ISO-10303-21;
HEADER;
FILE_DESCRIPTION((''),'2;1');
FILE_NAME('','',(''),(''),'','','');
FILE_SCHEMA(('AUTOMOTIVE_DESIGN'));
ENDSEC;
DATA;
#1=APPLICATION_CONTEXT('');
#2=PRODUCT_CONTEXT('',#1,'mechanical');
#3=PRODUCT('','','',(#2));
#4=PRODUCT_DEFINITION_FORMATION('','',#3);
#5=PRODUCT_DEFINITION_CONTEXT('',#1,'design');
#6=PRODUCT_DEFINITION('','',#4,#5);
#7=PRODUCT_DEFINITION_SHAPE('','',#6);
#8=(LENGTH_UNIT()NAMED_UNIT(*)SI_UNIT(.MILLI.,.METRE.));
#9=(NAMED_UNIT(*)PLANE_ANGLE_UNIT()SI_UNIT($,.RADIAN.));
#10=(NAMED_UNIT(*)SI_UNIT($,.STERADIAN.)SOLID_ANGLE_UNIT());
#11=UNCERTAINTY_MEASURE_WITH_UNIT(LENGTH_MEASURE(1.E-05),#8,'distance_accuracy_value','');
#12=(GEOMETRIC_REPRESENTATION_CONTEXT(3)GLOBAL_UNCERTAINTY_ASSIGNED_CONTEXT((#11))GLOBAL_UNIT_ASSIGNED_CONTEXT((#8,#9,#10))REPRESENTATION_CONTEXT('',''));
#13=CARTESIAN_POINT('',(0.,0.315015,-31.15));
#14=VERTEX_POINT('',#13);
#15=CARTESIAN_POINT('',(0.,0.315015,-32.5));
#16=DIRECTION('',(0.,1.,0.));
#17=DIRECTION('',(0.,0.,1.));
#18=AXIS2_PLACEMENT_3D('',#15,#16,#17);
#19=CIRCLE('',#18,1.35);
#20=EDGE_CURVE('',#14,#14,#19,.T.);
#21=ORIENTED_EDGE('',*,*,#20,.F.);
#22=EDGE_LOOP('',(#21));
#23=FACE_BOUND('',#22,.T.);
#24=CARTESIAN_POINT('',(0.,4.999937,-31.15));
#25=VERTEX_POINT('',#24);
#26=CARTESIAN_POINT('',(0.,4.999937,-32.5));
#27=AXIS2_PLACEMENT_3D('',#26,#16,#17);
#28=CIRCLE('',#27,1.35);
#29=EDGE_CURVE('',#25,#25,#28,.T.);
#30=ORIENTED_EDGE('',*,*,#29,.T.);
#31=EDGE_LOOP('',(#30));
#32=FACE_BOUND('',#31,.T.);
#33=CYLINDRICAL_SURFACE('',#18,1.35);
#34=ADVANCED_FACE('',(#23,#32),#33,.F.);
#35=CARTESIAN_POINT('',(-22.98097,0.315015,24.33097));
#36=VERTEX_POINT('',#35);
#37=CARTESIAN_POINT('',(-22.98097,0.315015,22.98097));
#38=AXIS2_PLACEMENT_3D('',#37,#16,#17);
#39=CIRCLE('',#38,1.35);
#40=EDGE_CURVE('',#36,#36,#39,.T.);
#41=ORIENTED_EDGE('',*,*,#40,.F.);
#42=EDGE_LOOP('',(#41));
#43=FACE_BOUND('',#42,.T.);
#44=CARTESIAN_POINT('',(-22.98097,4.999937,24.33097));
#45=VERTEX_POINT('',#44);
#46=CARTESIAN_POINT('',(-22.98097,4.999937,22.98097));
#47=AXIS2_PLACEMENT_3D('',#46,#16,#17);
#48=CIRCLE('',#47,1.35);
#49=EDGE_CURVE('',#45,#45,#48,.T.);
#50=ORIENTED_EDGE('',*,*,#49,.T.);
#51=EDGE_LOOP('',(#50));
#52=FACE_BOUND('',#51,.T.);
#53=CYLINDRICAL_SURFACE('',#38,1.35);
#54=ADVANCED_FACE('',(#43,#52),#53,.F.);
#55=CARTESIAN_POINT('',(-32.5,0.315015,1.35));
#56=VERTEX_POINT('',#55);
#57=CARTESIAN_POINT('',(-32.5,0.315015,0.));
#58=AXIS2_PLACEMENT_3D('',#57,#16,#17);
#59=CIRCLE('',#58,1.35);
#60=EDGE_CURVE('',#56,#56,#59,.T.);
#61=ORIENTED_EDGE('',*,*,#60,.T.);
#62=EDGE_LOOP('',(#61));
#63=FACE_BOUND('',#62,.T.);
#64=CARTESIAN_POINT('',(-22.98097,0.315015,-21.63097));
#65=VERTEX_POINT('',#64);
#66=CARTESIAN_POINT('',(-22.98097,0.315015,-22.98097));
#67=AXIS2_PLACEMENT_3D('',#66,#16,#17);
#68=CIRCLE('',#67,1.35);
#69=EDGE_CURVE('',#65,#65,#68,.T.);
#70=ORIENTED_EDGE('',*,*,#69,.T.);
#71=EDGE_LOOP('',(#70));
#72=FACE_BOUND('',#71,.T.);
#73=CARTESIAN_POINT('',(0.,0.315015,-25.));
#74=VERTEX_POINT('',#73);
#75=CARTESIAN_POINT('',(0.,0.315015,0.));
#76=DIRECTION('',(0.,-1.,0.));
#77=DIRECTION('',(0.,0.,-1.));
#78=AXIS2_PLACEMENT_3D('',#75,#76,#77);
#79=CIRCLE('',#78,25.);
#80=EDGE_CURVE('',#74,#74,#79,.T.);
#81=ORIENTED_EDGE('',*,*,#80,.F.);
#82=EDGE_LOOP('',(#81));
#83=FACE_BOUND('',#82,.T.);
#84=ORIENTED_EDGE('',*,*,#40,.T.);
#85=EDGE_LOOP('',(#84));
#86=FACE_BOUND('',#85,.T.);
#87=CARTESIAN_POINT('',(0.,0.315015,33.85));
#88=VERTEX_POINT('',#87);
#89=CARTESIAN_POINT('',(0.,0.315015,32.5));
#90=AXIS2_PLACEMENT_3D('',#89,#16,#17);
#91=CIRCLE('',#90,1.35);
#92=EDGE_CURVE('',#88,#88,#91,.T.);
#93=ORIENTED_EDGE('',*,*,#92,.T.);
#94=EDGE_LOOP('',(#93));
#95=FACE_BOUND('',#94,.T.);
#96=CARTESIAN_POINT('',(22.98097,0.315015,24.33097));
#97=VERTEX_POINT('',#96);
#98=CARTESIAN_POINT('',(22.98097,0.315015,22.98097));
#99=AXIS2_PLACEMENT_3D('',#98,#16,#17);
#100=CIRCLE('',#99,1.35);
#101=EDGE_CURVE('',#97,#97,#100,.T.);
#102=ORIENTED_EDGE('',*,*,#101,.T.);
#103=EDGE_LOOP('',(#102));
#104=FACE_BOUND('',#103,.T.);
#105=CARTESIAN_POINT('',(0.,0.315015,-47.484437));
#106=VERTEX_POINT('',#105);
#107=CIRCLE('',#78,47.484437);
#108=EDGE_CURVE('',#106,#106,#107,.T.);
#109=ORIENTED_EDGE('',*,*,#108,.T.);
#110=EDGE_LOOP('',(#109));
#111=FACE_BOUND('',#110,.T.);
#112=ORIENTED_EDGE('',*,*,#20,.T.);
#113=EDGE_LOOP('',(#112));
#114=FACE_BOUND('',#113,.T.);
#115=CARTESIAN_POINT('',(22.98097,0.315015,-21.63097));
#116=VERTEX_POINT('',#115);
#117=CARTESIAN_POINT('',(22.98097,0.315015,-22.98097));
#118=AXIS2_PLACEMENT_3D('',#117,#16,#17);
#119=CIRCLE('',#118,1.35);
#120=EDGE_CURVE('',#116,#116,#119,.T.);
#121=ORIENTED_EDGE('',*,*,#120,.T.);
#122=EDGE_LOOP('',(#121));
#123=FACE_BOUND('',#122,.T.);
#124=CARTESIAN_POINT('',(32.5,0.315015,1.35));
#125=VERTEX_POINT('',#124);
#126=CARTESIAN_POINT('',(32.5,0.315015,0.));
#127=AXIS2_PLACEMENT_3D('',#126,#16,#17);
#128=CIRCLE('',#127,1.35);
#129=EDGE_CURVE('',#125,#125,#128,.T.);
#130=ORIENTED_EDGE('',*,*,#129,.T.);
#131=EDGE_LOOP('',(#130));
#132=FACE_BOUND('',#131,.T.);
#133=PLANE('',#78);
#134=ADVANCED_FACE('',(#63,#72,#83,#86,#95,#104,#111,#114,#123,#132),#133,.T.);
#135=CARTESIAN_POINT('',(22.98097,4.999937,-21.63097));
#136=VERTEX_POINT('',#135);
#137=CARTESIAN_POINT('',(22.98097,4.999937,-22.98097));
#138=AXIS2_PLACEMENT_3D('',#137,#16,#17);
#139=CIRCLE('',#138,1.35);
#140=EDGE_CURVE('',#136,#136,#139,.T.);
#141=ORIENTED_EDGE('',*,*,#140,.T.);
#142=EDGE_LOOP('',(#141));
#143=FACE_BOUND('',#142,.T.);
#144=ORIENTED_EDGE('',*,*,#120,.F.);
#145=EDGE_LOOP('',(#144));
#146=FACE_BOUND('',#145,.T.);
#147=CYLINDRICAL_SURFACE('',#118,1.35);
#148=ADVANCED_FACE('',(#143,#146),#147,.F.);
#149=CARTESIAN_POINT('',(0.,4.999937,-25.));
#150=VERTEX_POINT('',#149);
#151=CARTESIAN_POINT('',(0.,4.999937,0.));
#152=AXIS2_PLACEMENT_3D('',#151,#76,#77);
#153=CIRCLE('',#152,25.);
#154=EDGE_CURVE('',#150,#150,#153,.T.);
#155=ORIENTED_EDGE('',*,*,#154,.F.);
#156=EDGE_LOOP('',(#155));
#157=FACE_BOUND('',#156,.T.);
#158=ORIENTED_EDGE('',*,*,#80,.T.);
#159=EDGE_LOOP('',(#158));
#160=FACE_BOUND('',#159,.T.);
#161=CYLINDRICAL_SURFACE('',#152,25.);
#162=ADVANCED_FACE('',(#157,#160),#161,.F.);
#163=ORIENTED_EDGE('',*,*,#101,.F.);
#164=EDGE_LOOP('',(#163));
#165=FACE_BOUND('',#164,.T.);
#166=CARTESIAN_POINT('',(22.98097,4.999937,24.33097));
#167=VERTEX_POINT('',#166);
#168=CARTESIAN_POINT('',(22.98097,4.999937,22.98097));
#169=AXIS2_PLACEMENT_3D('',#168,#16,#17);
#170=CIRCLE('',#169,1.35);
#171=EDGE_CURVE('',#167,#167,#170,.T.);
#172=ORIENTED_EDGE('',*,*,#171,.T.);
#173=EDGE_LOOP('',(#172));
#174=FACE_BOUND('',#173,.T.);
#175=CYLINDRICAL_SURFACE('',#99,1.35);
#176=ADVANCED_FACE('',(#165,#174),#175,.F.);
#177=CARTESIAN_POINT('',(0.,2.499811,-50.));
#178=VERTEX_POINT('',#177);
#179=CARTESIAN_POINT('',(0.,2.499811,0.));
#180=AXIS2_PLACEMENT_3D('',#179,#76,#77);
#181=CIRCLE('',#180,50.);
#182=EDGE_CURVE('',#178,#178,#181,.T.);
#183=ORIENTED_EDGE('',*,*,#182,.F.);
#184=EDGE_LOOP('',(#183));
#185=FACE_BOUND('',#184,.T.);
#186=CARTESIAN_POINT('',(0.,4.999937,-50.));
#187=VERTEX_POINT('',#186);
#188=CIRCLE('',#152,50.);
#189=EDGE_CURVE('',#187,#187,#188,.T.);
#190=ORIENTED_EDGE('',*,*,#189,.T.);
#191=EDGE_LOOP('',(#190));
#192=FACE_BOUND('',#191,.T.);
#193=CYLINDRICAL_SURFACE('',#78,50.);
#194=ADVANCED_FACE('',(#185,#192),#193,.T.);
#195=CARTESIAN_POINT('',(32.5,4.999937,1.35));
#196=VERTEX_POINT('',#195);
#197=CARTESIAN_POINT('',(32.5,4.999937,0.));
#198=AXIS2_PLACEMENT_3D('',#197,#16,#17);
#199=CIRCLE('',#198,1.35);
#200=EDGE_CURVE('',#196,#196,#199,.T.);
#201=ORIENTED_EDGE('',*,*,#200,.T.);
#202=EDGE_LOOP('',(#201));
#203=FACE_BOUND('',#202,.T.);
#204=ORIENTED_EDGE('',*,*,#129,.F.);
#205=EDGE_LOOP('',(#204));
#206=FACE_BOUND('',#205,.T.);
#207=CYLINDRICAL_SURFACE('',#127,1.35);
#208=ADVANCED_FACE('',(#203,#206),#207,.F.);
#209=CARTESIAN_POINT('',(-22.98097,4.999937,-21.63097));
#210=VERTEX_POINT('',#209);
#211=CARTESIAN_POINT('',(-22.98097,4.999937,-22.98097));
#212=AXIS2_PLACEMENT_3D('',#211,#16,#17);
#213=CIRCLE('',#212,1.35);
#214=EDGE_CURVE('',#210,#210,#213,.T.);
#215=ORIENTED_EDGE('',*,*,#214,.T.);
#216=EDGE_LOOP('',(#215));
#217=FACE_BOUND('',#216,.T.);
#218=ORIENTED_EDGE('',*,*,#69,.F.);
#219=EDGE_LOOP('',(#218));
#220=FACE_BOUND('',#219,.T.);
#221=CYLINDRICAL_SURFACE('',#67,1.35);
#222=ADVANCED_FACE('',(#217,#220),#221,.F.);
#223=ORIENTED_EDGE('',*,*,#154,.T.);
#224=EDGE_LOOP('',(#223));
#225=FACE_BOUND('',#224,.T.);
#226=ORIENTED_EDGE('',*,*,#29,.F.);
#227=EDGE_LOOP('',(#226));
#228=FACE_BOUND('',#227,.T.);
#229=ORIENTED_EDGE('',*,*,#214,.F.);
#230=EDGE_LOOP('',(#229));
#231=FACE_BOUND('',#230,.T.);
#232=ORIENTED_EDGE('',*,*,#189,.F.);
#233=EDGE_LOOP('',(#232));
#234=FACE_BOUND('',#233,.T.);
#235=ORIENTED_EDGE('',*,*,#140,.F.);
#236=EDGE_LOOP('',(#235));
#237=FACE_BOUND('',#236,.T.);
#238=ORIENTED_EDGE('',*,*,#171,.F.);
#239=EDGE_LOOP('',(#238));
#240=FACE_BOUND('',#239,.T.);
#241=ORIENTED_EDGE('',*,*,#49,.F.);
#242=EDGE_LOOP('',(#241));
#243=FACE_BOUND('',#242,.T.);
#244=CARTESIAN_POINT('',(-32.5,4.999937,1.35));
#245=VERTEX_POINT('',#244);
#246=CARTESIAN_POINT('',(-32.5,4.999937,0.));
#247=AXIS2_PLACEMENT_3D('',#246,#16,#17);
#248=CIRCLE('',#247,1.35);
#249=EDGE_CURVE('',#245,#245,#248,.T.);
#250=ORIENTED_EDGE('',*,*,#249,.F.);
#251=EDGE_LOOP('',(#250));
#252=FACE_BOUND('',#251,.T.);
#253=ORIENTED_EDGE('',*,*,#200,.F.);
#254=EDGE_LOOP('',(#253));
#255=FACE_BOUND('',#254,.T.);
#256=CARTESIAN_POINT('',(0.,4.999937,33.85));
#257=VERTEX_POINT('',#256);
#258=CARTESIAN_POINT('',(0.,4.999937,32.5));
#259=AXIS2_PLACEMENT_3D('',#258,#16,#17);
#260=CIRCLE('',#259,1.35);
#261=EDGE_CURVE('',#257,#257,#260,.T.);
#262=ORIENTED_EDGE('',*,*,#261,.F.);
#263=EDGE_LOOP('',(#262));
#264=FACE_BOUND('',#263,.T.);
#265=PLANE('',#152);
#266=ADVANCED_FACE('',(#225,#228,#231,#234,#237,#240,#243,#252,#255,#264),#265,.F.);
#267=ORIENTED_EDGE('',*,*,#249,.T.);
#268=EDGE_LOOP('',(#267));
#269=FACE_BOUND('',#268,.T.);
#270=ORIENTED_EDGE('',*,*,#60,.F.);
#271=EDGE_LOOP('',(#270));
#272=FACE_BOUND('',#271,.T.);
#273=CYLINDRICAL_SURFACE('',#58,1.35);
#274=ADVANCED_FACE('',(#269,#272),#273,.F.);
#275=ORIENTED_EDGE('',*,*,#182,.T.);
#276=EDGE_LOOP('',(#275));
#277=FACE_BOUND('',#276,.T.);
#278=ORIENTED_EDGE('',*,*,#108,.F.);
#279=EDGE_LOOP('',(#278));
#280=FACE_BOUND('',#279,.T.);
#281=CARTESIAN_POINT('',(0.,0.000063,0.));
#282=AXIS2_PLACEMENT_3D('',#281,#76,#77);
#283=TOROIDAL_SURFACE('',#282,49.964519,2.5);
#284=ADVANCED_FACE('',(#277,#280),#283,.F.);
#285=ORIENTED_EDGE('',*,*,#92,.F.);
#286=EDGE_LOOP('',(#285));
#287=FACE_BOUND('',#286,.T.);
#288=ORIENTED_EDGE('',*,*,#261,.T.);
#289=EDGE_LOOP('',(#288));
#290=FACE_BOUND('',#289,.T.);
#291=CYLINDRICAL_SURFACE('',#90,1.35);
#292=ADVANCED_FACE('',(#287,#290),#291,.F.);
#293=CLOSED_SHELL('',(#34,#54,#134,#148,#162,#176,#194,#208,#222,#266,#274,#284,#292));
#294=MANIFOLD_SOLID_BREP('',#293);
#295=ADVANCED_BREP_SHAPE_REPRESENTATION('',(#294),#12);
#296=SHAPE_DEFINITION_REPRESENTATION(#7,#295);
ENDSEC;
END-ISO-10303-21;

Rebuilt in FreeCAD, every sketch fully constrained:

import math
import FreeCAD as App
import Part
import Sketcher

V = App.Vector

doc = App.newDocument("Part")
body = doc.addObject("PartDesign::Body", "Body")

# Sketch on XY plane
sketch1 = doc.addObject("Sketcher::SketchObject", "Sketch")
body.addObject(sketch1)
sketch1.AttachmentSupport = (doc.XY_Plane, [""])
sketch1.MapMode = "FlatFace"
sketch1.addGeometry([
    Part.LineSegment(V(-47.5, 0.3, 0), V(0, 0.3, 0)),  # 0
    Part.LineSegment(V(0, 0.3, 0), V(0, 5, 0)),  # 1
    Part.LineSegment(V(0, 5, 0), V(-50, 5, 0)),  # 2
    Part.LineSegment(V(-50, 5, 0), V(-50, 2.5, 0)),  # 3
    Part.ArcOfCircle(Part.Circle(V(-50, 0, 0), V(0, 0, 1), 2.5), math.radians(7), math.radians(91)),  # 4
], False)
sketch1.addConstraint([
    Sketcher.Constraint("Coincident", 0, 2, 1, 1),
    Sketcher.Constraint("Coincident", 1, 2, 2, 1),
    Sketcher.Constraint("Coincident", 2, 2, 3, 1),
    Sketcher.Constraint("Coincident", 3, 2, 4, 2),
    Sketcher.Constraint("Coincident", 4, 1, 0, 1),
    Sketcher.Constraint("Horizontal", 0),
    Sketcher.Constraint("Vertical", 1),
    Sketcher.Constraint("Horizontal", 2),
    Sketcher.Constraint("Vertical", 3),
    Sketcher.Constraint("PointOnObject", 0, 2, -2),
    Sketcher.Constraint("Radius", 4, 2.5),
    Sketcher.Constraint("DistanceX", 2, 2, 2, 1, 50.0),
    Sketcher.Constraint("DistanceY", 1, 1, 1, 2, 4.684922),
    Sketcher.Constraint("DistanceX", 0, 1, 0, 2, 47.484437),
    Sketcher.Constraint("DistanceY", 3, 2, 3, 1, 2.500126),
    Sketcher.Constraint("DistanceY", -1, 1, 3, 2, 2.499811),
])
revolution = doc.addObject("PartDesign::Revolution", "Revolution")
body.addObject(revolution)
revolution.Profile = sketch1
revolution.ReferenceAxis = (sketch1, ["V_Axis"])
revolution.Angle = 360

# Sketch on XZ plane
sketch2 = doc.addObject("Sketcher::SketchObject", "Sketch001")
body.addObject(sketch2)
sketch2.AttachmentSupport = (doc.XZ_Plane, [""])
sketch2.MapMode = "FlatFace"
sketch2.AttachmentOffset = App.Placement(V(0, 0, -4.999937), App.Rotation())
sketch2.addGeometry([
    Part.Circle(V(0, -32.5, 0), V(0, 0, 1), 1.4),  # 0
    Part.Circle(V(23, -23, 0), V(0, 0, 1), 1.4),  # 1
    Part.Circle(V(32.5, 0, 0), V(0, 0, 1), 1.4),  # 2
    Part.Circle(V(23, 23, 0), V(0, 0, 1), 1.4),  # 3
    Part.Circle(V(0, 32.5, 0), V(0, 0, 1), 1.4),  # 4
    Part.Circle(V(-23, 23, 0), V(0, 0, 1), 1.4),  # 5
    Part.Circle(V(-32.5, 0, 0), V(0, 0, 1), 1.4),  # 6
    Part.Circle(V(-23, -23, 0), V(0, 0, 1), 1.4),  # 7
], False)
sketch2.addConstraint([
    Sketcher.Constraint("Equal", 0, 1),
    Sketcher.Constraint("Equal", 1, 2),
    Sketcher.Constraint("Equal", 2, 3),
    Sketcher.Constraint("Equal", 3, 4),
    Sketcher.Constraint("Equal", 4, 5),
    Sketcher.Constraint("Equal", 5, 6),
    Sketcher.Constraint("Equal", 6, 7),
    Sketcher.Constraint("Symmetric", 0, 3, 4, 3, -1, 1),
    Sketcher.Constraint("Symmetric", 1, 3, 5, 3, -1, 1),
    Sketcher.Constraint("Symmetric", 2, 3, 6, 3, -1, 1),
    Sketcher.Constraint("Symmetric", 3, 3, 7, 3, -1, 1),
    Sketcher.Constraint("Symmetric", 3, 3, 5, 3, -2),
    Sketcher.Constraint("PointOnObject", 0, 3, -2),
    Sketcher.Constraint("PointOnObject", 2, 3, -1),
    Sketcher.Constraint("Diameter", 0, 2.7),
    Sketcher.Constraint("DistanceY", 0, 3, 4, 3, 65.0),
    Sketcher.Constraint("DistanceX", -1, 1, 2, 3, 32.5),
    Sketcher.Constraint("DistanceX", -1, 1, 1, 3, 22.98097),
    Sketcher.Constraint("DistanceY", 1, 3, -1, 1, 22.98097),
])
pocket1 = doc.addObject("PartDesign::Pocket", "Pocket")
body.addObject(pocket1)
pocket1.Profile = sketch2
pocket1.Type = "ThroughAll"
pocket1.Reversed = True

# Sketch on XZ plane
sketch3 = doc.addObject("Sketcher::SketchObject", "Sketch002")
body.addObject(sketch3)
sketch3.AttachmentSupport = (doc.XZ_Plane, [""])
sketch3.MapMode = "FlatFace"
sketch3.AttachmentOffset = App.Placement(V(0, 0, -0.315015), App.Rotation())
sketch3.addGeometry(Part.Circle(V(0, 0, 0), V(0, 0, 1), 25), False)
sketch3.addConstraint([
    Sketcher.Constraint("Coincident", 0, 3, -1, 1),
    Sketcher.Constraint("Diameter", 0, 50.0),
])
pocket2 = doc.addObject("PartDesign::Pocket", "Pocket001")
body.addObject(pocket2)
pocket2.Profile = sketch3
pocket2.Type = "ThroughAll"

doc.recompute()
